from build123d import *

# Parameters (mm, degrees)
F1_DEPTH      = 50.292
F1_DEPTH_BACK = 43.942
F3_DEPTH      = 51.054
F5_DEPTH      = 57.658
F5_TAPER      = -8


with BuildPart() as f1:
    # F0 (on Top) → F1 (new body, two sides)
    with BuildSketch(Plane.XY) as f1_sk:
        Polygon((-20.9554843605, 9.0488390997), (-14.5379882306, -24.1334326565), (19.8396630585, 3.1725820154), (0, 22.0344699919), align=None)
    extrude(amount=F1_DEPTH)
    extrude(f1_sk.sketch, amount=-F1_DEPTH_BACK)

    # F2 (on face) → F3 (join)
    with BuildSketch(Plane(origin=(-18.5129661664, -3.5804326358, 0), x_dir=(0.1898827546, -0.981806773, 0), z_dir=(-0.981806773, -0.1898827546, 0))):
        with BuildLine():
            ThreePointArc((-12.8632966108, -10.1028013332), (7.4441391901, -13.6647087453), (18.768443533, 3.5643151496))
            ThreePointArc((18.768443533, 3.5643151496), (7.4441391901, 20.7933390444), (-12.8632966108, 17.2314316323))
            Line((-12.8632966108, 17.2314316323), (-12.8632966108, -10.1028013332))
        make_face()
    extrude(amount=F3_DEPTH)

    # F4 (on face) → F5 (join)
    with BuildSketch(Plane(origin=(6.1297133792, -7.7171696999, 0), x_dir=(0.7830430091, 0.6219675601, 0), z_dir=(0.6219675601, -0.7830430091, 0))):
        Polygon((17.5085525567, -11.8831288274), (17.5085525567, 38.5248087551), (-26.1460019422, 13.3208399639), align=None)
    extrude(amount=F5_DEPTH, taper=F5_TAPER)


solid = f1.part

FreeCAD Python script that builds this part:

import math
import FreeCAD as App
import Part
import Sketcher
from FreeCAD import Vector
Q = App.Units.Quantity


def add_polygon(sketch, points):
    """Adds a closed chain of lines whose ends are joined by coincident constraints."""
    first, n = sketch.GeometryCount, len(points)
    for a, b in zip(points, points[1:] + points[:1]):
        sketch.addGeometry(Part.LineSegment(App.Vector(*a, 0), App.Vector(*b, 0)), False)
    for i in range(n):
        sketch.addConstraint(Sketcher.Constraint("Coincident", first + i, 2, first + (i + 1) % n, 1))

doc = App.newDocument("Part")
body = doc.addObject("PartDesign::Body", "Body")

sketch1 = doc.addObject("Sketcher::SketchObject", "Sketch")
body.addObject(sketch1)
sketch1.AttachmentSupport = (doc.XY_Plane, [""])
sketch1.MapMode = "FlatFace"
add_polygon(sketch1, [(-20.955484, 9.048839), (-14.537988, -24.133433), (19.839663, 3.172582), (0, 22.03447)])
sketch1.addConstraint([
    Sketcher.Constraint("PointOnObject", 2, 2, -2),
    Sketcher.Constraint("Distance", 0, Q("33.797151 mm")),
    Sketcher.Constraint("Distance", 2, Q("27.374862 mm")),
    Sketcher.Constraint("DistanceX", 0, 2, -1, 1, Q("14.537988 mm")),
    Sketcher.Constraint("DistanceY", -1, 1, 2, 2, Q("22.03447 mm")),
    Sketcher.Constraint("DistanceY", -1, 1, 3, 2, Q("9.048839 mm")),
    Sketcher.Constraint("DistanceX", 0, 2, 1, 2, Q("34.377651 mm")),
    Sketcher.Constraint("DistanceY", 0, 2, 3, 2, Q("33.182272 mm")),
])
pad1 = doc.addObject("PartDesign::Pad", "Pad")
body.addObject(pad1)
pad1.Profile = sketch1
pad1.Type = "TwoLengths"
pad1.Length = Q("1.98 in")
pad1.Length2 = Q("1.73 in")

sketch2 = doc.addObject("Sketcher::SketchObject", "Sketch001")
body.addObject(sketch2)
sketch2.Placement = App.Placement(Vector(-18.512966, -3.580433, 0), App.Rotation(Vector(0.189882755, -0.981806773, 0), Vector(0, 0, 1), Vector(-0.981806773, -0.189882755, 0), "ZXY"))
sketch2.addGeometry([
    Part.ArcOfCircle(Part.Circle(Vector(0, 3.564315, 0), Vector(0, 0, 1), 18.768444), math.radians(-133.26458), math.radians(133.26458)),
    Part.LineSegment(Vector(-12.863297, 17.231432, 0), Vector(-12.863297, -10.102801, 0)),
], False)
sketch2.addConstraint([
    Sketcher.Constraint("Coincident", 0, 1, 1, 2),
    Sketcher.Constraint("Coincident", 1, 1, 0, 2),
    Sketcher.Constraint("Vertical", 1),
    Sketcher.Constraint("PointOnObject", 0, 3, -2),
    Sketcher.Constraint("Radius", 0, Q("18.768444 mm")),
    Sketcher.Constraint("DistanceY", 0, 1, -1, 1, Q("10.102801 mm")),
    Sketcher.Constraint("DistanceY", 1, 2, 1, 1, Q("27.334233 mm")),
])
pad2 = doc.addObject("PartDesign::Pad", "Pad001")
body.addObject(pad2)
pad2.Profile = sketch2
pad2.Length = Q("2.01 in")

sketch3 = doc.addObject("Sketcher::SketchObject", "Sketch002")
body.addObject(sketch3)
sketch3.Placement = App.Placement(Vector(6.129713, -7.71717, 0), App.Rotation(Vector(0.783043009, 0.62196756, 0), Vector(0, 0, 1), Vector(0.62196756, -0.783043009, 0), "ZXY"))
add_polygon(sketch3, [(17.508553, -11.883129), (17.508553, 38.524809), (-26.146002, 13.32084)])
sketch3.addConstraint([
    Sketcher.Constraint("Vertical", 0),
    Sketcher.Constraint("Equal", 1, 2),
    Sketcher.Constraint("Angle", 1, Q("-150 deg")),
    Sketcher.Constraint("DistanceX", 1, 2, -1, 1, Q("26.146002 mm")),
    Sketcher.Constraint("DistanceY", 0, 1, 0, 2, Q("50.407938 mm")),
    Sketcher.Constraint("DistanceY", -1, 1, 0, 2, Q("38.524809 mm")),
])
pad3 = doc.addObject("PartDesign::Pad", "Pad002")
body.addObject(pad3)
pad3.Profile = sketch3
pad3.Length = Q("2.27 in")
pad3.TaperAngle = 8

doc.recompute()
